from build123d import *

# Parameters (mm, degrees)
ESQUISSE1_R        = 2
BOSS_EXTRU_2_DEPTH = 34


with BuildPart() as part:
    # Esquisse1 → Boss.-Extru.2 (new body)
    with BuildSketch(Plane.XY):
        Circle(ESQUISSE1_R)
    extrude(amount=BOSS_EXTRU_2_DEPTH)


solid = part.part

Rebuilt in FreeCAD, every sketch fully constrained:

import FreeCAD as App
import Part
import Sketcher

doc = App.newDocument("Part")
body = doc.addObject("PartDesign::Body", "Body")

# Sketch on XY plane
sketch1 = body.newObject("Sketcher::SketchObject", "Sketch")
sketch1.AttachmentSupport = (doc.getObject("XY_Plane"), [""])
sketch1.MapMode = "FlatFace"
sketch1.addGeometry(Part.Circle(App.Vector(0, 0, 0), App.Vector(0, 0, 1), 2), False)
sketch1.addConstraint([
    Sketcher.Constraint("Coincident", 0, 3, -1, 1),
    Sketcher.Constraint("Diameter", 0, 4.0),
])
pad1 = body.newObject("PartDesign::Pad", "Pad")
pad1.Profile = sketch1
pad1.Length = 34

doc.recompute()
